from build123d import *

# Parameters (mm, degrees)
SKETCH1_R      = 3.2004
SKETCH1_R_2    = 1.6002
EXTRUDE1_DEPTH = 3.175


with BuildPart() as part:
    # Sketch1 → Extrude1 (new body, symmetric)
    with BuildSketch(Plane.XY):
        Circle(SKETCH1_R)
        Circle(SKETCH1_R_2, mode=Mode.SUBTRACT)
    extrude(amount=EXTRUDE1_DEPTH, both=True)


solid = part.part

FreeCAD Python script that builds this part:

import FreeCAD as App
import Part
import Sketcher

V = App.Vector
Q = App.Units.Quantity

doc = App.newDocument("Part")
body = doc.addObject("PartDesign::Body", "Body")

# Sketch on XY plane
sketch1 = doc.addObject("Sketcher::SketchObject", "Sketch")
body.addObject(sketch1)
sketch1.AttachmentSupport = (doc.XY_Plane, [""])
sketch1.MapMode = "FlatFace"
sketch1.addGeometry(Part.Circle(V(0, 0, 0), V(0, 0, 1), 3.2), False)
sketch1.addGeometry(Part.Circle(V(0, 0, 0), V(0, 0, 1), 1.6), False)
sketch1.addConstraint(Sketcher.Constraint("Coincident", 0, 3, -1, 1))
sketch1.addConstraint(Sketcher.Constraint("Coincident", 1, 3, -1, 1))
sketch1.addConstraint(Sketcher.Constraint("Diameter", 0, Q("0.252 in")))
sketch1.addConstraint(Sketcher.Constraint("Diameter", 1, Q("0.126 in")))
pad1 = doc.addObject("PartDesign::Pad", "Pad")
body.addObject(pad1)
pad1.Profile = sketch1
pad1.Length = Q("0.25 in")
pad1.Midplane = True

doc.recompute()
